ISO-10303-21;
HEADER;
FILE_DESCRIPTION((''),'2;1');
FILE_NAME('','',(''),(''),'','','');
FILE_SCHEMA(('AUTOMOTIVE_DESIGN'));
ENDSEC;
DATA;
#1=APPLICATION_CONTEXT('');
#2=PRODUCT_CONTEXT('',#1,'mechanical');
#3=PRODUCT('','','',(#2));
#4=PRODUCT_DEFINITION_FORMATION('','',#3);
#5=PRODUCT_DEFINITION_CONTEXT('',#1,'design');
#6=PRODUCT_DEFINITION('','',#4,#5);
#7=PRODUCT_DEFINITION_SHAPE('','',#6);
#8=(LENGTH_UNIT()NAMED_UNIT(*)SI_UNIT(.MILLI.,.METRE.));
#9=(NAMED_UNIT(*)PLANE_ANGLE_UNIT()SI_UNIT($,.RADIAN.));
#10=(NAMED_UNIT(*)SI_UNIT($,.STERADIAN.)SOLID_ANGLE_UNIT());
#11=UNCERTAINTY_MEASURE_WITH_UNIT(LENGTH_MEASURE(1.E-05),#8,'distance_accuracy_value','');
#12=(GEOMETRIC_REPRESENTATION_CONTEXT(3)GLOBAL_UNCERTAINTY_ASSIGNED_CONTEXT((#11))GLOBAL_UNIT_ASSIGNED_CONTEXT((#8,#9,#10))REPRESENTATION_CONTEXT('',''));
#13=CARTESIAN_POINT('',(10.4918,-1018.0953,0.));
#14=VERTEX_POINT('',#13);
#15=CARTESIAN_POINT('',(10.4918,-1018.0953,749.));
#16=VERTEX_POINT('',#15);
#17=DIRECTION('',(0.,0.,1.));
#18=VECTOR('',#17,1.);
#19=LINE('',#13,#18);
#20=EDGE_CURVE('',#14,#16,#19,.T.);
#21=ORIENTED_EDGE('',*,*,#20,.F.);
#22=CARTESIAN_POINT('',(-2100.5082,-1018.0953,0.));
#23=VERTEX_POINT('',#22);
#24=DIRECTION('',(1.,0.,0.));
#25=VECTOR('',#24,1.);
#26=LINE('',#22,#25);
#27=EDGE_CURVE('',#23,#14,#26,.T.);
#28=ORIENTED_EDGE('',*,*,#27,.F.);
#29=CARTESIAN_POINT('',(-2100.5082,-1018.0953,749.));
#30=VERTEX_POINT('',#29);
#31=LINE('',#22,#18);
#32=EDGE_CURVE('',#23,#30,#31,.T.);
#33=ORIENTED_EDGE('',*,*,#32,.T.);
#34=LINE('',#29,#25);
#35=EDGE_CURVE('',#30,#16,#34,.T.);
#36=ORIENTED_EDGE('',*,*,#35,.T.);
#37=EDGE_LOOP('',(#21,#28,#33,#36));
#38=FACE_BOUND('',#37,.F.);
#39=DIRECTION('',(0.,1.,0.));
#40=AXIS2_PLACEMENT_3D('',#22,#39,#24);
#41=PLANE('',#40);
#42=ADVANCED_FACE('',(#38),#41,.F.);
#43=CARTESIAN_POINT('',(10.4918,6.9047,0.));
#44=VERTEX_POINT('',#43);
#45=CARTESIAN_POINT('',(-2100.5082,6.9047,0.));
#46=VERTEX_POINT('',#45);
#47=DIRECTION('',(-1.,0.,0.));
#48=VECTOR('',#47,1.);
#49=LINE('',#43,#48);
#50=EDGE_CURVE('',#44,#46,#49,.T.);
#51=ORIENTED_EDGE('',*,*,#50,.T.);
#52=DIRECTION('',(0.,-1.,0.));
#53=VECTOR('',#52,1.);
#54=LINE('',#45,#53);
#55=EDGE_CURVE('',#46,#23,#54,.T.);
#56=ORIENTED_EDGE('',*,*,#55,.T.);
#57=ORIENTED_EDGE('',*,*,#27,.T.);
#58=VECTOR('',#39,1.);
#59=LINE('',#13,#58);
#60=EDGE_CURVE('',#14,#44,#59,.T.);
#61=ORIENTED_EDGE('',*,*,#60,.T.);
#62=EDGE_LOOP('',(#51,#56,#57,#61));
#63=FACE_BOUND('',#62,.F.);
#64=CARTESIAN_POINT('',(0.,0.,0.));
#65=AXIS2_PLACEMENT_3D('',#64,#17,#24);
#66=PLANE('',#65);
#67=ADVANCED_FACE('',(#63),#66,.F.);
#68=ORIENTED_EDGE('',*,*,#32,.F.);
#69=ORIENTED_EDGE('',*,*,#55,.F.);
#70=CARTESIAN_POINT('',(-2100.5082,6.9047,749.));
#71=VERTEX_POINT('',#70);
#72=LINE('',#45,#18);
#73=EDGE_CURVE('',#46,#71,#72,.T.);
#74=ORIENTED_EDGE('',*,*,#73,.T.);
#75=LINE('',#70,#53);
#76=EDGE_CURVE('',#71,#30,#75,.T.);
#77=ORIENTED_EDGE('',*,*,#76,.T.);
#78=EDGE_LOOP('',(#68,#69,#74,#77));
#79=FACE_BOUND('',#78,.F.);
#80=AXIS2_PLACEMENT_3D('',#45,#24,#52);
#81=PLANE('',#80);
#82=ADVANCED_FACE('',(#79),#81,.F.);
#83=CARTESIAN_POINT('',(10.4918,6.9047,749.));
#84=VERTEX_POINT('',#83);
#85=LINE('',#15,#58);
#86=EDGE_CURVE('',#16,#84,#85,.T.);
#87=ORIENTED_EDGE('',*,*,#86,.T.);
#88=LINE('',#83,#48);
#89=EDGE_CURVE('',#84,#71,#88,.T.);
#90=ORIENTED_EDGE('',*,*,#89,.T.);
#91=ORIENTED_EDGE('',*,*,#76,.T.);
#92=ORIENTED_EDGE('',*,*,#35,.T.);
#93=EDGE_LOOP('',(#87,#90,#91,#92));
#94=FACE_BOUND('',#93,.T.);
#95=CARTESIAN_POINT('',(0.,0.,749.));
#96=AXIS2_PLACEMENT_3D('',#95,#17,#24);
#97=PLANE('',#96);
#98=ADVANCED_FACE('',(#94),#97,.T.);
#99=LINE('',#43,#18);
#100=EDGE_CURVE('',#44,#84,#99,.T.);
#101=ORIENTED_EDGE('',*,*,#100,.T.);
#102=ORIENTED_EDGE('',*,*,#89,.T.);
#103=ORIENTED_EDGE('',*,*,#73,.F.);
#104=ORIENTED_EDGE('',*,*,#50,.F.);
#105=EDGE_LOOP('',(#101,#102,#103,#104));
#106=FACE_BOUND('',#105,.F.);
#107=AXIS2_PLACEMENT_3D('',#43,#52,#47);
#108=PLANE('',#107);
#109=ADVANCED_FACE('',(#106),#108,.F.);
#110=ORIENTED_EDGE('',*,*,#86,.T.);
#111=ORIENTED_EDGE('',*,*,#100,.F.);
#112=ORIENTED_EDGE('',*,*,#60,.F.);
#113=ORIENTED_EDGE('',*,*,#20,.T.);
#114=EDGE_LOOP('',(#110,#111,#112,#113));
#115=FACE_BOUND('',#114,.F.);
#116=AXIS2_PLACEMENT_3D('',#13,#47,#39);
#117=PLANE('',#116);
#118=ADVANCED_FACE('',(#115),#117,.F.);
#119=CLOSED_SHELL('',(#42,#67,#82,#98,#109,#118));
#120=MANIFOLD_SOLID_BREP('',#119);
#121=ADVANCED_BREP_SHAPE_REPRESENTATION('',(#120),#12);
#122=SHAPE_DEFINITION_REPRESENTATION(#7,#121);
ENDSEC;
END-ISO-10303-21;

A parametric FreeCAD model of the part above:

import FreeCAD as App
import Part
import Sketcher

doc = App.newDocument("Part")
body = doc.addObject("PartDesign::Body", "Body")

# Sketch on XY plane
sketch1 = doc.addObject("Sketcher::SketchObject", "Sketch")
body.addObject(sketch1)
sketch1.AttachmentSupport = (doc.XY_Plane, [""])
sketch1.MapMode = "FlatFace"
sketch1.addGeometry([
    Part.LineSegment(App.Vector(-2101, 7, 0), App.Vector(-2101, -1018, 0)),
    Part.LineSegment(App.Vector(-2101, -1018, 0), App.Vector(10, -1018, 0)),
    Part.LineSegment(App.Vector(10, -1018, 0), App.Vector(10, 7, 0)),
    Part.LineSegment(App.Vector(10, 7, 0), App.Vector(-2101, 7, 0)),
], False)
sketch1.addConstraint([
    Sketcher.Constraint("Coincident", 0, 2, 1, 1),
    Sketcher.Constraint("Coincident", 1, 2, 2, 1),
    Sketcher.Constraint("Coincident", 2, 2, 3, 1),
    Sketcher.Constraint("Coincident", 3, 2, 0, 1),
    Sketcher.Constraint("Vertical", 0),
    Sketcher.Constraint("Horizontal", 1),
    Sketcher.Constraint("Vertical", 2),
    Sketcher.Constraint("Horizontal", 3),
    Sketcher.Constraint("DistanceX", 1, 1, 1, 2, 2111.0),
    Sketcher.Constraint("DistanceY", 0, 2, 0, 1, 1025.0),
    Sketcher.Constraint("DistanceX", 0, 2, -1, 1, 2100.5082),
    Sketcher.Constraint("DistanceY", 0, 2, -1, 1, 1018.0953),
])
pad1 = doc.addObject("PartDesign::Pad", "Pad")
body.addObject(pad1)
pad1.Profile = sketch1
pad1.Length = 749

doc.recompute()
